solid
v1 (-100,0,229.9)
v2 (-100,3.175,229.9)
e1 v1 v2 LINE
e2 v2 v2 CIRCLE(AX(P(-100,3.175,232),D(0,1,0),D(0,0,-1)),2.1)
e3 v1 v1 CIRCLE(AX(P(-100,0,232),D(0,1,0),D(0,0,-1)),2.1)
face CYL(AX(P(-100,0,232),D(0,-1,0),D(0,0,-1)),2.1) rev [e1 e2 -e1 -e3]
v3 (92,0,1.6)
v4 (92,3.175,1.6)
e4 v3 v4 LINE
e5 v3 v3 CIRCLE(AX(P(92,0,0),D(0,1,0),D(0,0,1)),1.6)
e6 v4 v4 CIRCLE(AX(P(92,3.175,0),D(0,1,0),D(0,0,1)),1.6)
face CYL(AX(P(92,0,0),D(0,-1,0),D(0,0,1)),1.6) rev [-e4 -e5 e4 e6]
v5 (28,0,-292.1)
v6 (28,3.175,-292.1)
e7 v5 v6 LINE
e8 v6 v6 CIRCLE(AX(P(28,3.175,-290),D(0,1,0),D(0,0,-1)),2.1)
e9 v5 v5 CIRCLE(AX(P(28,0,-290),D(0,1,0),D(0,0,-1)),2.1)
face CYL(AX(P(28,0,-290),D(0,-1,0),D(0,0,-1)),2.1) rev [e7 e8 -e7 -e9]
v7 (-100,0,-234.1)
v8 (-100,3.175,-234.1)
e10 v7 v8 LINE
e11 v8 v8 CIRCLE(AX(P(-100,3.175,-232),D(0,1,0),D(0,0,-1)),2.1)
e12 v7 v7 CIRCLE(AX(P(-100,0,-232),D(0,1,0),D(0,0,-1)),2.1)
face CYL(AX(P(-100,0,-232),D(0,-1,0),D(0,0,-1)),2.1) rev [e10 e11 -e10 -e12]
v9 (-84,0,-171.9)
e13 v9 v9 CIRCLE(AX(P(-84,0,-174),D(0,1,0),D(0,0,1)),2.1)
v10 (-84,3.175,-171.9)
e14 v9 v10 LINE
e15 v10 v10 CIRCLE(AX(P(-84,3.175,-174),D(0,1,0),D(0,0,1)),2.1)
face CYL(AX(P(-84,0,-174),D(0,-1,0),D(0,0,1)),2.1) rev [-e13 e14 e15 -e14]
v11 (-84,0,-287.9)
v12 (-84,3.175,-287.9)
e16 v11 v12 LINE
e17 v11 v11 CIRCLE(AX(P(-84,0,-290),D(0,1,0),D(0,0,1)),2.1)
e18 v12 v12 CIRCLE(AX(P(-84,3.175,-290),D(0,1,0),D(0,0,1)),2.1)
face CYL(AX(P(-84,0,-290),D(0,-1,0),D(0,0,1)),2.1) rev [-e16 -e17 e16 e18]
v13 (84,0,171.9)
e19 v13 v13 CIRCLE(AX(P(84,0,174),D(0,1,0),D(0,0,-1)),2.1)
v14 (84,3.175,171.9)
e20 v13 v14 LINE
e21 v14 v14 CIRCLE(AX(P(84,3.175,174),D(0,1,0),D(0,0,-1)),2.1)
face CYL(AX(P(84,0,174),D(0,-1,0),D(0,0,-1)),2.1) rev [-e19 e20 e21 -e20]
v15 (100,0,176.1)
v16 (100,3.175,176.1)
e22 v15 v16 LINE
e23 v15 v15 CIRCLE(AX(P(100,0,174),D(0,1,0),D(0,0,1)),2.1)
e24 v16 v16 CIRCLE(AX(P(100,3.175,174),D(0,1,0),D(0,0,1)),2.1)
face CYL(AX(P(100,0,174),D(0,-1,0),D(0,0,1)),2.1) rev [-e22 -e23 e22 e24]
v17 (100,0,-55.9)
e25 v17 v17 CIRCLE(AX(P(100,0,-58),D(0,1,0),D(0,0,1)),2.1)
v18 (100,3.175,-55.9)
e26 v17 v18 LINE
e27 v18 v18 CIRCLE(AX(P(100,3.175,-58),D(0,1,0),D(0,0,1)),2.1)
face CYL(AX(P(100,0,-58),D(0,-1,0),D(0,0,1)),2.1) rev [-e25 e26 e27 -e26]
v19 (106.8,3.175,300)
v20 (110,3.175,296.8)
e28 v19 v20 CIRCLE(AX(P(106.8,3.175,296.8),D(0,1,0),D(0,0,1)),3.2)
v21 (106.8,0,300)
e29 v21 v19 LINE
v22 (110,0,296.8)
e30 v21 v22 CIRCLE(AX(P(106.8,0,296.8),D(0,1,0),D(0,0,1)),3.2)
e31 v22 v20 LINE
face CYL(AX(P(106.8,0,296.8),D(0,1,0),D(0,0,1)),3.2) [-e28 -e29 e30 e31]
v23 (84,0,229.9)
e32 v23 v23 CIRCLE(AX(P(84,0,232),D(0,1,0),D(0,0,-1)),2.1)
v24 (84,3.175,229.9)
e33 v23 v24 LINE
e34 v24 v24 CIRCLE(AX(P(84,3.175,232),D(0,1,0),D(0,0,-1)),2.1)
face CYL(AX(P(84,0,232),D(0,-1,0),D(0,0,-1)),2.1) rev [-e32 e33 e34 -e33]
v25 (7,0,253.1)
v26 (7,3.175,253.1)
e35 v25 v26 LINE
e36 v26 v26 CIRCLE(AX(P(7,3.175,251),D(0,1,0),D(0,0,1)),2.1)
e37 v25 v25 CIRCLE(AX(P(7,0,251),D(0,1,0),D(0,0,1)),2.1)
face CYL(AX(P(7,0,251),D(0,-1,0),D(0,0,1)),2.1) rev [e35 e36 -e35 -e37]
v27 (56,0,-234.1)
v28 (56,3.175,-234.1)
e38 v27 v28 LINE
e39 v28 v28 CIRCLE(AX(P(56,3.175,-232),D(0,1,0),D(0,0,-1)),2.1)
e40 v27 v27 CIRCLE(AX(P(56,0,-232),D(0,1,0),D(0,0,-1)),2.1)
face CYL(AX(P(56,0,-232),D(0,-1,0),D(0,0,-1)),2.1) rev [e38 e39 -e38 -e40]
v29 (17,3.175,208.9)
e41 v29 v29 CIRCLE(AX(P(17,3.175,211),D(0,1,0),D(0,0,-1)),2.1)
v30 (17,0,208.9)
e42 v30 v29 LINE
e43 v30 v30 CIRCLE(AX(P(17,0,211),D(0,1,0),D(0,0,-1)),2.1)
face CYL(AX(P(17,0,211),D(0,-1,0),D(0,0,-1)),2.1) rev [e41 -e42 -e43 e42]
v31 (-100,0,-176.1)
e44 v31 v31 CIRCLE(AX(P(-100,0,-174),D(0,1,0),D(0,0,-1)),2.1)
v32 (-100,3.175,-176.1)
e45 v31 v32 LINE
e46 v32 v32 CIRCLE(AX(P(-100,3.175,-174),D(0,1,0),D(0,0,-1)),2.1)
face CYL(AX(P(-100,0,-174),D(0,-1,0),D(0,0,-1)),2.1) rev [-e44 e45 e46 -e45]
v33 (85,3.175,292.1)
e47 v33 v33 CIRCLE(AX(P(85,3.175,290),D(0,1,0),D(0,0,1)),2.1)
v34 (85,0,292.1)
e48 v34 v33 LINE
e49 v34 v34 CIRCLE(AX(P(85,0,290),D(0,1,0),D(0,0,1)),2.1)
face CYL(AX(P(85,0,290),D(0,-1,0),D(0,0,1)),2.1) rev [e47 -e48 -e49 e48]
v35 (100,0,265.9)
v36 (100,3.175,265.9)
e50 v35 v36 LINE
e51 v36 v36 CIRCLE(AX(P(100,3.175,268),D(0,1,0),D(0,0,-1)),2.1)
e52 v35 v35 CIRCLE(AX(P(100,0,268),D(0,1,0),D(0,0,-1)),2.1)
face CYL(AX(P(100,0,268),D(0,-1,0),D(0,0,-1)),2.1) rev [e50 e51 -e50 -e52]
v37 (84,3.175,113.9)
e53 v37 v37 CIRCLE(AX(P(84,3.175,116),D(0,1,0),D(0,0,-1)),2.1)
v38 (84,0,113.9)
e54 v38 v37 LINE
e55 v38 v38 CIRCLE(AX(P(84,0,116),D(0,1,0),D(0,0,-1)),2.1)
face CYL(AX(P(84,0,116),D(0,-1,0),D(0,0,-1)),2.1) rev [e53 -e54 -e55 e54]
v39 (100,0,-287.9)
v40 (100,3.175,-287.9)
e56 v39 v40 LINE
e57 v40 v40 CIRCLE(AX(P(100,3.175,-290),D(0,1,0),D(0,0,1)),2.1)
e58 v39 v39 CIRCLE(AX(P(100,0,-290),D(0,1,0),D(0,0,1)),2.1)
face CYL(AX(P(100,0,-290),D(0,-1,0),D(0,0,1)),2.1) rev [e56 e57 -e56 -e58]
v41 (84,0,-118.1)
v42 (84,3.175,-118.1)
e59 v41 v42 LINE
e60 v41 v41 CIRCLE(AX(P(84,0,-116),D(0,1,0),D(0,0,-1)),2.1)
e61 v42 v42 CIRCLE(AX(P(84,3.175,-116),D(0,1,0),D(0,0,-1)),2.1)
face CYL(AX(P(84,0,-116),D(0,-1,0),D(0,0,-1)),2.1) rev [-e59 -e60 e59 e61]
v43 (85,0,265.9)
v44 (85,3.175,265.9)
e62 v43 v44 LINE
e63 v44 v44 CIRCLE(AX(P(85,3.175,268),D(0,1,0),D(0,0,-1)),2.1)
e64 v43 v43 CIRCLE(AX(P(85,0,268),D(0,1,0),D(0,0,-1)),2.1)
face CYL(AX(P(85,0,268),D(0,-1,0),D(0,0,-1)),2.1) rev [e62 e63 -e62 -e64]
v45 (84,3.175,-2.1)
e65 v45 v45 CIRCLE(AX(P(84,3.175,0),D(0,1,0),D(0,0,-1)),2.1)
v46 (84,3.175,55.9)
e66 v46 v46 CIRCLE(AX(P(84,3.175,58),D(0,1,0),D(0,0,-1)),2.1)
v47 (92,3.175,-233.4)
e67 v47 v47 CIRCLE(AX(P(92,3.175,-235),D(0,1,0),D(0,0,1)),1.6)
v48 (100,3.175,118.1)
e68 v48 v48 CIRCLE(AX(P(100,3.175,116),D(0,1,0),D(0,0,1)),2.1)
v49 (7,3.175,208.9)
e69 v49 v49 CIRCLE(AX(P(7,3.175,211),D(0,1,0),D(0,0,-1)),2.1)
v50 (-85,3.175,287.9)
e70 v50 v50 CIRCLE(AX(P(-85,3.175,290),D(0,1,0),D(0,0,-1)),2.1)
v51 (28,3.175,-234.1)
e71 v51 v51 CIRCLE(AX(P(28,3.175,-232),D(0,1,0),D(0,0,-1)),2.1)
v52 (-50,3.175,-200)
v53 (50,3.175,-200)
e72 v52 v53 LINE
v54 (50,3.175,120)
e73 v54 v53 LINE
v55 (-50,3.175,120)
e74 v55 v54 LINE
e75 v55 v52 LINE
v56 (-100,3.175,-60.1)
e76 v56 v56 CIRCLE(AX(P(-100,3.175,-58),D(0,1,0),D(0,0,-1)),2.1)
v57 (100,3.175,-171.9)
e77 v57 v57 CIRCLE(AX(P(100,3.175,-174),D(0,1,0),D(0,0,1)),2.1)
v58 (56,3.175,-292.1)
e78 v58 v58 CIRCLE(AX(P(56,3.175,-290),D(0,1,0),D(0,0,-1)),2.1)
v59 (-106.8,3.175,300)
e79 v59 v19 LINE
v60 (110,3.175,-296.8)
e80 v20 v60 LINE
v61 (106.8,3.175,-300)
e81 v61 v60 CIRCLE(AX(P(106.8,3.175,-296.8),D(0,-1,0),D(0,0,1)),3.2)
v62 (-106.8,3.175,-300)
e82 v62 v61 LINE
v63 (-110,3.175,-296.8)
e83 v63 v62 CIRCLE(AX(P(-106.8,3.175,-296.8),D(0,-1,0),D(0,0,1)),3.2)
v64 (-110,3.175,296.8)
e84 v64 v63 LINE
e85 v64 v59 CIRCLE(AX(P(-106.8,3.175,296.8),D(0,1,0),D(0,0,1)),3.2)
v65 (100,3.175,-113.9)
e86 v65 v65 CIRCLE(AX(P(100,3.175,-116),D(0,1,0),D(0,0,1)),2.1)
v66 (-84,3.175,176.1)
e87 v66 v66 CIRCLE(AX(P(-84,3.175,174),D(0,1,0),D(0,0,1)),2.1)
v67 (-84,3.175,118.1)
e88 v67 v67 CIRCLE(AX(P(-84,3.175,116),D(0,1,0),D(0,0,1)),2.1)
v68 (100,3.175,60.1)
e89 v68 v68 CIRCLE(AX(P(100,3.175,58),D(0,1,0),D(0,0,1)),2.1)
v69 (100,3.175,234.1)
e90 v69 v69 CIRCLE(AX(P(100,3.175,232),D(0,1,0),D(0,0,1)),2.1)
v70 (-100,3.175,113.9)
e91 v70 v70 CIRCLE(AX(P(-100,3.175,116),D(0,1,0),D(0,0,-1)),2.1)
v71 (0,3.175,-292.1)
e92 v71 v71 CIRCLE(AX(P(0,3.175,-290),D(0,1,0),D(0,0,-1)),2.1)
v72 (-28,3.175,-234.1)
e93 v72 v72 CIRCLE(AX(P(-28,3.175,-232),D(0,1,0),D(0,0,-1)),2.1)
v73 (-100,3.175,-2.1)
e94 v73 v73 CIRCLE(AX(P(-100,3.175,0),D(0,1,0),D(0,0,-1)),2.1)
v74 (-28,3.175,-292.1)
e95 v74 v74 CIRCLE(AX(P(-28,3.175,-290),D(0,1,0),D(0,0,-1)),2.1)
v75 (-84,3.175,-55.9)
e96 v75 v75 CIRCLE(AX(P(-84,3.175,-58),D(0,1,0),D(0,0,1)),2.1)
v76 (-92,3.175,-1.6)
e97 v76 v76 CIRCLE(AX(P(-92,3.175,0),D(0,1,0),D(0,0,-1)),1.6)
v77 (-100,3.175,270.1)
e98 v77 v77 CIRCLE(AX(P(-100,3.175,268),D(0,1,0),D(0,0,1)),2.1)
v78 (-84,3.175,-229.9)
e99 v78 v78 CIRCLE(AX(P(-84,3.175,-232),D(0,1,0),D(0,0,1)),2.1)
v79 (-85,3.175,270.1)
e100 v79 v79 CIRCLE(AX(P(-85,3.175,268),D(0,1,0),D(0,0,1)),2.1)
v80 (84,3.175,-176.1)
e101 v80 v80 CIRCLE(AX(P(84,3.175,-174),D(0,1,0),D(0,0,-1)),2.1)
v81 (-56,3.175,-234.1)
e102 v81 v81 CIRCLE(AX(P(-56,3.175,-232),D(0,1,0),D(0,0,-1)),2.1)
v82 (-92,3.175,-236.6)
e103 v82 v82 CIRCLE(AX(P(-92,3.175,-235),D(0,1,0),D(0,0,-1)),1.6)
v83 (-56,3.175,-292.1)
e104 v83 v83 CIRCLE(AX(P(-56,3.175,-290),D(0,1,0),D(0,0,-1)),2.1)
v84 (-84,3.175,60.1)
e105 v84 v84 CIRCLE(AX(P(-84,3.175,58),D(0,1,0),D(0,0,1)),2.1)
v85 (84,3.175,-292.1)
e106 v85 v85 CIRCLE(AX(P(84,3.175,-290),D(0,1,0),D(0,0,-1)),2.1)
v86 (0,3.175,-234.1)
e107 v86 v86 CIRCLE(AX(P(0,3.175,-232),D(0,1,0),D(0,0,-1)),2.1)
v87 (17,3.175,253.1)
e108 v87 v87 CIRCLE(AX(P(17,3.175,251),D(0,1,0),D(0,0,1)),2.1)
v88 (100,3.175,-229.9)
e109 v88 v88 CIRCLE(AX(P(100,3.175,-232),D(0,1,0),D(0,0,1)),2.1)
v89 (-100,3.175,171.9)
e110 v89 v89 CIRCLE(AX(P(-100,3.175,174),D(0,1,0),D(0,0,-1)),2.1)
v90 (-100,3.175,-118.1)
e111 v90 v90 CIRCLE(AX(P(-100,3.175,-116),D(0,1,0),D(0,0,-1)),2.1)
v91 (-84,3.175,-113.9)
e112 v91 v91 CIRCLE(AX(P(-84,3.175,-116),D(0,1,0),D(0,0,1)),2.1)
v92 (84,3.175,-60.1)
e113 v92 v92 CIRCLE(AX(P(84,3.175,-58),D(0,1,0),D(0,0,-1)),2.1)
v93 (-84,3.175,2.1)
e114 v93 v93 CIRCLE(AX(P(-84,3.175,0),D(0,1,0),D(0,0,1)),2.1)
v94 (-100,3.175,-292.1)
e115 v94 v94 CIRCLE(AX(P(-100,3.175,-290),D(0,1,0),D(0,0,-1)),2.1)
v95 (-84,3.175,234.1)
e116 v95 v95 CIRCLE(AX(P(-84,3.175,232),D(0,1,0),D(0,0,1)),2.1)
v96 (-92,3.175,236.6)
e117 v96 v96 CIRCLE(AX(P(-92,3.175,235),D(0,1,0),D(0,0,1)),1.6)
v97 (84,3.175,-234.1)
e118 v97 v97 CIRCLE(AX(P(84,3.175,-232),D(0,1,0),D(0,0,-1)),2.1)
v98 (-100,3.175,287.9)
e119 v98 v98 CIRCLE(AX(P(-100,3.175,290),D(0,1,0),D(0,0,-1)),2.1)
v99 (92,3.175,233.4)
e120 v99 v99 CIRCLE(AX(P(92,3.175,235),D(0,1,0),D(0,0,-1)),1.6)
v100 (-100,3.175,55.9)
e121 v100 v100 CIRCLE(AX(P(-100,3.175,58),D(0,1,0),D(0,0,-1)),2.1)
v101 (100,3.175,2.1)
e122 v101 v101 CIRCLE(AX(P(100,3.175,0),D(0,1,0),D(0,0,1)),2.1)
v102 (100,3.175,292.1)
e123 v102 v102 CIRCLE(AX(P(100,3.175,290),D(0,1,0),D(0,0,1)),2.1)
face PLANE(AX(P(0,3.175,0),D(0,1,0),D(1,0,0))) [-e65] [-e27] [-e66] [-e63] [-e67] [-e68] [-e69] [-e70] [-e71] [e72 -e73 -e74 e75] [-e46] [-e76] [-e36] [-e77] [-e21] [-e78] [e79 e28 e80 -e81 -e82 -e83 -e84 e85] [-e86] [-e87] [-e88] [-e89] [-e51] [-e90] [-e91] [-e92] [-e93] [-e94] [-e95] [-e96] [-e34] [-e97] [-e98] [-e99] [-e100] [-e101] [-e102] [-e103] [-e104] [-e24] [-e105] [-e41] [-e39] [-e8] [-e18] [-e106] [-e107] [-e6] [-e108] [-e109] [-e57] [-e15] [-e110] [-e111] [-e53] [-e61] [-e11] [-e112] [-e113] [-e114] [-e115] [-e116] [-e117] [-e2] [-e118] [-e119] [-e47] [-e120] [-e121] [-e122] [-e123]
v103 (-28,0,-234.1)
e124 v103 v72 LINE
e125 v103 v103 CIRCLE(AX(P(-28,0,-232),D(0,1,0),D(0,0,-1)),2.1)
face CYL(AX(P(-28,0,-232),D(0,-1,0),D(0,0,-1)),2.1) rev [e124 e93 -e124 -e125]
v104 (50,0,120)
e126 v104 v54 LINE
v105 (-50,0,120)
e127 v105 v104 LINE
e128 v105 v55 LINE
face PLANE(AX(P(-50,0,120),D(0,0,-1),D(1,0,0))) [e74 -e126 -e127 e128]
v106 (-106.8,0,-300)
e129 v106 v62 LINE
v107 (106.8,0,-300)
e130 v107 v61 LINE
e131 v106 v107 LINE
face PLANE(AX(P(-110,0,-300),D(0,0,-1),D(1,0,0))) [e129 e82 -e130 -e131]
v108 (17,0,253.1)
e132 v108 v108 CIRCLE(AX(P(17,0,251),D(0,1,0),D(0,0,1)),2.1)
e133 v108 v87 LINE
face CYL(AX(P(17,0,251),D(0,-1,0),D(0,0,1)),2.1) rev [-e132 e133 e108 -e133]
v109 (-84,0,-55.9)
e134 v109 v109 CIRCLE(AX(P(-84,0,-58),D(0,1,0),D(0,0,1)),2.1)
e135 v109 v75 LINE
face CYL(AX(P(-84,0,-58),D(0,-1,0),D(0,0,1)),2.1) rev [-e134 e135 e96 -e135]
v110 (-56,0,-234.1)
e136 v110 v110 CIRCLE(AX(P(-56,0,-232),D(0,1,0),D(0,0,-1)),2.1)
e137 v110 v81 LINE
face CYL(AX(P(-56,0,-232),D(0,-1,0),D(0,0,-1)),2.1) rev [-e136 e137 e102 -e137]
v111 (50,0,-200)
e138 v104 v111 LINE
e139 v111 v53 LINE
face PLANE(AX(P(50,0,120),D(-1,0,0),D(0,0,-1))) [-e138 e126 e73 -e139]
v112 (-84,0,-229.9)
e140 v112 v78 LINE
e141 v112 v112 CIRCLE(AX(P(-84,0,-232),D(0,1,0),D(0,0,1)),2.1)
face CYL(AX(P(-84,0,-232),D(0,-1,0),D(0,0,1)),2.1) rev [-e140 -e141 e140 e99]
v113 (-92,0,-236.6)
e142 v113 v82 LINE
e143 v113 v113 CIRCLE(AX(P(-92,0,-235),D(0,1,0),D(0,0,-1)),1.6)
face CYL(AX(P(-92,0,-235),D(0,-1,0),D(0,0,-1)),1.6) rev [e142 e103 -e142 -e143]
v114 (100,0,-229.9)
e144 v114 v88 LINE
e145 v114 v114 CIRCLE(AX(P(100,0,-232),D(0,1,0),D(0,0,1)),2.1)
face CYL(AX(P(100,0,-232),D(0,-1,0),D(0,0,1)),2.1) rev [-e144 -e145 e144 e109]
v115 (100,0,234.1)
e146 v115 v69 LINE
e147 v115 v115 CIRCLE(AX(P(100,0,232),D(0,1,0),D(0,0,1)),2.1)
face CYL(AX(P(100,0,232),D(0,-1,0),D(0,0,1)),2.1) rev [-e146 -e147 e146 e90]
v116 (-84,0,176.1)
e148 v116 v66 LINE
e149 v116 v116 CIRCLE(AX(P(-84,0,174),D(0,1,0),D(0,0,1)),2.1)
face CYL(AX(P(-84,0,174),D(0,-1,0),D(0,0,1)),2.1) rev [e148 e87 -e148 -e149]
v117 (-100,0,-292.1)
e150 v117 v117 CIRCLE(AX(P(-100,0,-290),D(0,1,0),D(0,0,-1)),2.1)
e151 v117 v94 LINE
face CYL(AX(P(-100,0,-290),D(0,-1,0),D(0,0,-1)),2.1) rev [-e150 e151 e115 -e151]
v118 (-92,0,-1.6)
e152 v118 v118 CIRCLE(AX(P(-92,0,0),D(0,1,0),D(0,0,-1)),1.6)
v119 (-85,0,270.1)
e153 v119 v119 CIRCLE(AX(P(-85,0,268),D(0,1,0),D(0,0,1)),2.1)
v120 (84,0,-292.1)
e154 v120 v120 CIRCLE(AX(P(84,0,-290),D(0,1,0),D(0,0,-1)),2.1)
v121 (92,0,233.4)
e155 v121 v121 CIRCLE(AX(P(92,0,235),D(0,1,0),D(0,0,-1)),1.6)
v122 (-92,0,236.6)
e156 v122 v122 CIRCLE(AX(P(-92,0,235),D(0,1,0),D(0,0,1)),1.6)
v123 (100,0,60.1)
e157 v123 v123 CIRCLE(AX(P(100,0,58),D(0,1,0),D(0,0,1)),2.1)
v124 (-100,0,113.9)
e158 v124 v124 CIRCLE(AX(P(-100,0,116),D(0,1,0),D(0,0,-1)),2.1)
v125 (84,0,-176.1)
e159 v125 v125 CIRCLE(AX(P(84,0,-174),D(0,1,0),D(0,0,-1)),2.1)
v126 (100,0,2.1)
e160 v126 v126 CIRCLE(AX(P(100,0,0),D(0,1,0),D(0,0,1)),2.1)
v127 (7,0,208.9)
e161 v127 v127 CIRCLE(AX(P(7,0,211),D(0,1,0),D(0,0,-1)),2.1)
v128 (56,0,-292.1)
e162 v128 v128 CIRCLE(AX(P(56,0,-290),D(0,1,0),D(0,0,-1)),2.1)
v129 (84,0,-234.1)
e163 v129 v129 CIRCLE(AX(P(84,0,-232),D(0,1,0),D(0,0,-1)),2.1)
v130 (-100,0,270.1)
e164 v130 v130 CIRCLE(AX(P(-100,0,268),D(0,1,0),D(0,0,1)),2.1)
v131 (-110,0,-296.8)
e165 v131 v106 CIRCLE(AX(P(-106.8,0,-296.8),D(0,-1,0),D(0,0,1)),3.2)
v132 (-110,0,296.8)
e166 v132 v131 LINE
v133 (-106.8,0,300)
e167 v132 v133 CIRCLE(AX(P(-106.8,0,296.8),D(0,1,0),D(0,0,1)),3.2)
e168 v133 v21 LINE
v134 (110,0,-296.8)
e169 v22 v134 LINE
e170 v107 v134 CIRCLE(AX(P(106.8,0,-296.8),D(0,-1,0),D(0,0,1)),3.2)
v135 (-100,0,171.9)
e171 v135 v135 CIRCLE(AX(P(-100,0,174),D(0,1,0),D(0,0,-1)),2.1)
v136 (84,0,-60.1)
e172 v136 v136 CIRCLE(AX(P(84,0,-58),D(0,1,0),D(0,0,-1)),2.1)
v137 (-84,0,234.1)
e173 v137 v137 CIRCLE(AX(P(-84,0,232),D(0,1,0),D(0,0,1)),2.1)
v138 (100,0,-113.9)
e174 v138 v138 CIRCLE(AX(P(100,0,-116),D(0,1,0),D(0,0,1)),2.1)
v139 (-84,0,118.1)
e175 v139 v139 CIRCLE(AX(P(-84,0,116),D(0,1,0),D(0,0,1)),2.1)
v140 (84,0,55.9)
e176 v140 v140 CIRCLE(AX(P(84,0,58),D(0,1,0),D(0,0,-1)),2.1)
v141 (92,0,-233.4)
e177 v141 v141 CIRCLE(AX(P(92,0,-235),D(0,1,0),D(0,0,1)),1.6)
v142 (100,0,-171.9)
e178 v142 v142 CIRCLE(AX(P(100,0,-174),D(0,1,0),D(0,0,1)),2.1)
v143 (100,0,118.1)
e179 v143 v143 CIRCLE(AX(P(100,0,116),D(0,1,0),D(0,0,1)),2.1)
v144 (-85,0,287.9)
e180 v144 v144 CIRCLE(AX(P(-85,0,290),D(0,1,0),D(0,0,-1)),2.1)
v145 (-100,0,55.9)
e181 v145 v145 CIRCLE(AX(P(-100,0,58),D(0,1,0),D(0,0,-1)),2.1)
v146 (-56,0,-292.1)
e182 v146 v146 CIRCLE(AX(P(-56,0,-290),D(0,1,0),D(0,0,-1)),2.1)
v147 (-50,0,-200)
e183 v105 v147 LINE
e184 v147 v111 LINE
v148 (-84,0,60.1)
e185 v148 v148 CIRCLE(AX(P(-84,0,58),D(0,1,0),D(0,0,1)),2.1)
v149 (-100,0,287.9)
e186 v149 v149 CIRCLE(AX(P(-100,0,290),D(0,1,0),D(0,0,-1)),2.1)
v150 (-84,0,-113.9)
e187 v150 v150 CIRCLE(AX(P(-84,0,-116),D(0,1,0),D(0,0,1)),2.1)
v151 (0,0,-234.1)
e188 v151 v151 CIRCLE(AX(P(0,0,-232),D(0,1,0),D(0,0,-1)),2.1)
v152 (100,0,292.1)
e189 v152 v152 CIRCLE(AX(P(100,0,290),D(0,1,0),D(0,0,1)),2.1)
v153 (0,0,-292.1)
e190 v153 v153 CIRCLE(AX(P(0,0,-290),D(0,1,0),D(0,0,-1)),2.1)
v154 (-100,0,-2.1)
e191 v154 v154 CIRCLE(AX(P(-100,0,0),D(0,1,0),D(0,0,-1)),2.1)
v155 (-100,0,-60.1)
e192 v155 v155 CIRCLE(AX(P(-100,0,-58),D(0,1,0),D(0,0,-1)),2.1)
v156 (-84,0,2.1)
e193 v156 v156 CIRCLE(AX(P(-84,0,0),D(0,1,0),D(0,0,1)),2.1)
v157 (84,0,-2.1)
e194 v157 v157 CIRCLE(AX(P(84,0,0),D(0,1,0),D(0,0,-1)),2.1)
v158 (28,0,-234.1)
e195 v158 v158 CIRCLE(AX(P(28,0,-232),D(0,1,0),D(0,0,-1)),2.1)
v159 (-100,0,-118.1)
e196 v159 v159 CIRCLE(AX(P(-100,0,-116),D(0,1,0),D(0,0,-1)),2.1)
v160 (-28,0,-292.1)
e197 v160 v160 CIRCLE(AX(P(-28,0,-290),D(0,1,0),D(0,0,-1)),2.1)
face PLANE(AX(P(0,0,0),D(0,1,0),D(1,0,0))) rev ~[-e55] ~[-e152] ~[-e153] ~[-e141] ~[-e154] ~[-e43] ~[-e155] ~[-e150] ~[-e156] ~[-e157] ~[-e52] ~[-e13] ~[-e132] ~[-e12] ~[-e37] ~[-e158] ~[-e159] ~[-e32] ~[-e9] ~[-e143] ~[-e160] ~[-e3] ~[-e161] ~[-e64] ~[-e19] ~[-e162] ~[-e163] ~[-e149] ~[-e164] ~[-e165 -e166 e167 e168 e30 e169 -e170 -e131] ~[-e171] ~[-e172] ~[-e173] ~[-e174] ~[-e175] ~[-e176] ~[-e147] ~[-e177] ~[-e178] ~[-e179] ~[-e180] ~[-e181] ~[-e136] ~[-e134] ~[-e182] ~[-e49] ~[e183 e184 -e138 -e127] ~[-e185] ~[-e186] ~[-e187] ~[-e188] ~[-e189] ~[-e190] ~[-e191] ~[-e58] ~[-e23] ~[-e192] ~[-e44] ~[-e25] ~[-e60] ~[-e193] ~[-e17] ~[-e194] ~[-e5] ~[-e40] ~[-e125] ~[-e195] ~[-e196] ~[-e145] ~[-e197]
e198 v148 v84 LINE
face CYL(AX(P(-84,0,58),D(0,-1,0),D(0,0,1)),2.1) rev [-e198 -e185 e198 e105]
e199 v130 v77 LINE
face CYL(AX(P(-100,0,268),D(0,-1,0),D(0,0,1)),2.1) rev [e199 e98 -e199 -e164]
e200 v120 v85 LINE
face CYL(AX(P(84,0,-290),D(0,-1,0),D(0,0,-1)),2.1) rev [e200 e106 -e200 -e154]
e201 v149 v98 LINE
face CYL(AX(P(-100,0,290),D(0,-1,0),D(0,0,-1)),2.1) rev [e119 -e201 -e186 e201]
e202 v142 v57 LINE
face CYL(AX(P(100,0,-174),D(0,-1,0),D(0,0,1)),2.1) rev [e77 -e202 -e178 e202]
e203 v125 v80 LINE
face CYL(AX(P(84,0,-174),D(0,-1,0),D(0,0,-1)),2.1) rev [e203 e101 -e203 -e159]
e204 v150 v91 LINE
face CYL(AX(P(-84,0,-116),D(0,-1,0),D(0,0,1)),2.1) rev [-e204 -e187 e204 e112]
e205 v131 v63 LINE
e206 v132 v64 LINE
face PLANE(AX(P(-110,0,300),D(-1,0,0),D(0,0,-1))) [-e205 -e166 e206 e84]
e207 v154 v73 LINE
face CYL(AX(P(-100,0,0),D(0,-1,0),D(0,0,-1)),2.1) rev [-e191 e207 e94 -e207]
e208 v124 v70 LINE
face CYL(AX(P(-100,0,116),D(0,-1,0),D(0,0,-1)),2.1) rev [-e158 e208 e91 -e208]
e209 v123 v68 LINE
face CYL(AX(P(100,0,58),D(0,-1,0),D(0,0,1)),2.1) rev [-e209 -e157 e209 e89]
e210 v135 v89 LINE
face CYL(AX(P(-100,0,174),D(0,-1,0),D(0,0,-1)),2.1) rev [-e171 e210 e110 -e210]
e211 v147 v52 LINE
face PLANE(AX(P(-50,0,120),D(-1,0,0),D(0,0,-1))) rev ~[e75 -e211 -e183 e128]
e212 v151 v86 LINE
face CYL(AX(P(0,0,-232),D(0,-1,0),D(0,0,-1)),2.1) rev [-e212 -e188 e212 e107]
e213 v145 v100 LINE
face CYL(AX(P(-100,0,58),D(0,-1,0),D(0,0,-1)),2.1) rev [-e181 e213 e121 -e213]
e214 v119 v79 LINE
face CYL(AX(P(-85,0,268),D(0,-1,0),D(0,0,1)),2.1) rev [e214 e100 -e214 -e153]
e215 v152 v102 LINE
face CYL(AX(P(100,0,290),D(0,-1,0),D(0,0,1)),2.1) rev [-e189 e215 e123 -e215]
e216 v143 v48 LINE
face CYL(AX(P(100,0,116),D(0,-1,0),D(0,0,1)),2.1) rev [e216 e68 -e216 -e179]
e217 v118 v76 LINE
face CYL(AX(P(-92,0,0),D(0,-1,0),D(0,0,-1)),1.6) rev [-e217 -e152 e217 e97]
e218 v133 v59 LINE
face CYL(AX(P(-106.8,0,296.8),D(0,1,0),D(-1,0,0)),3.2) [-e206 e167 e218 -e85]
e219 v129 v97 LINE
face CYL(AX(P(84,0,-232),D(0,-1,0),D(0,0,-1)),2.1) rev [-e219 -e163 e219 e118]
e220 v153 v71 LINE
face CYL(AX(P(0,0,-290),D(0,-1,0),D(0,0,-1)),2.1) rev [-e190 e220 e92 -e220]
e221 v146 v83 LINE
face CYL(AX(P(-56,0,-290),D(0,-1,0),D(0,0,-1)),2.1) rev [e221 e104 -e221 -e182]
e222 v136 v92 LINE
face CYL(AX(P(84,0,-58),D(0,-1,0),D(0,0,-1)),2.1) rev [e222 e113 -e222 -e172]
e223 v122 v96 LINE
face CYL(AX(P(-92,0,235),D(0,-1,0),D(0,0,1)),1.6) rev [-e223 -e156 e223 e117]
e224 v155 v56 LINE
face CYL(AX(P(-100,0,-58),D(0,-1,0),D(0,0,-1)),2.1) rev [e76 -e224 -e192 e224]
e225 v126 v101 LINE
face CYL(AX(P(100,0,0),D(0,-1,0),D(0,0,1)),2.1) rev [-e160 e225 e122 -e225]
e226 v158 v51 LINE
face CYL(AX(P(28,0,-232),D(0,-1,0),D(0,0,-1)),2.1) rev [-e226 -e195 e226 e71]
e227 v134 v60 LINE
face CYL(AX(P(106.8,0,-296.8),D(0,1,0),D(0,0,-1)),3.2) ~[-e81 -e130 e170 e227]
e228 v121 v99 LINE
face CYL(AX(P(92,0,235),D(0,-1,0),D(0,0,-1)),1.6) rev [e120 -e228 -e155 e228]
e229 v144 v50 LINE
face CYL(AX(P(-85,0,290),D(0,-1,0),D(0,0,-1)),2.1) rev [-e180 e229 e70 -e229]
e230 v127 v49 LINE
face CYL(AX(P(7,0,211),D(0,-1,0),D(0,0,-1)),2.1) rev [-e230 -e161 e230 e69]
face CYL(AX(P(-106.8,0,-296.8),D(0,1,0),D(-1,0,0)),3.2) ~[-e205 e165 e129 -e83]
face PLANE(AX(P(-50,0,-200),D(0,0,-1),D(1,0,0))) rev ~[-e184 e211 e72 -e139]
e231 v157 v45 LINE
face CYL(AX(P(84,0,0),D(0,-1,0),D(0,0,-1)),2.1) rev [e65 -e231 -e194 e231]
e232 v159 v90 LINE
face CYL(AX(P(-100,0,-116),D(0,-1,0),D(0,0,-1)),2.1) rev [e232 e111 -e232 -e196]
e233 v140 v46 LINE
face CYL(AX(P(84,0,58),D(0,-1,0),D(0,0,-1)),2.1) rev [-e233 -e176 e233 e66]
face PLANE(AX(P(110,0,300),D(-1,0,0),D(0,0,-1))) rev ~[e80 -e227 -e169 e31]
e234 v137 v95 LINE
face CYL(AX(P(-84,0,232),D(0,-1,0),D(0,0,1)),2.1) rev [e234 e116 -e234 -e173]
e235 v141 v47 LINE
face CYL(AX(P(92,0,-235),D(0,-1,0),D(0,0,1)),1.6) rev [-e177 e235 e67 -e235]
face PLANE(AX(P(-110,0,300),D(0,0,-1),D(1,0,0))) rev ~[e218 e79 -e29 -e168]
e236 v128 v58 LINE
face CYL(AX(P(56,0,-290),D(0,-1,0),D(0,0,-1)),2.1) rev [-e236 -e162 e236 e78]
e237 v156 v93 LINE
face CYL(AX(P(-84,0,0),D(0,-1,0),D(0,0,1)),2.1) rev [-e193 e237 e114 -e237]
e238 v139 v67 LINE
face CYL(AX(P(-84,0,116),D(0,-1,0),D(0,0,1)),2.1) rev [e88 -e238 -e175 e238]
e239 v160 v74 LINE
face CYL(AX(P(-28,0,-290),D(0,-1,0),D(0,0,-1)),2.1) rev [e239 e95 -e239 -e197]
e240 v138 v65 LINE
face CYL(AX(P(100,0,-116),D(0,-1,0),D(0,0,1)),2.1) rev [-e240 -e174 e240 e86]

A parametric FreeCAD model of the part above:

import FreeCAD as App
import Part
import Sketcher

V = App.Vector


def edges_at(feature, points):
    """Names of the edges that pass closest to the given points."""
    edges = feature.Shape.Edges
    near = lambda p: min(range(len(edges)), key=lambda i: edges[i].distToShape(Part.Vertex(*p))[0])
    return sorted({f"Edge{near(p) + 1}" for p in points})

doc = App.newDocument("Part")
body = doc.addObject("PartDesign::Body", "Body")

# Sketch on XZ plane
sketch1 = body.newObject("Sketcher::SketchObject", "Sketch")
sketch1.AttachmentSupport = (doc.getObject("XZ_Plane"), [""])
sketch1.MapMode = "FlatFace"
sketch1.addGeometry(Part.LineSegment(V(-110, -300, 0), V(-110, 300, 0)), False)
sketch1.addGeometry(Part.LineSegment(V(-110, 300, 0), V(110, 300, 0)), False)
sketch1.addGeometry(Part.LineSegment(V(110, 300, 0), V(110, -300, 0)), False)
sketch1.addGeometry(Part.LineSegment(V(110, -300, 0), V(-110, -300, 0)), False)
sketch1.addGeometry(Part.Circle(V(-100, 290, 0), V(0, 0, 1), 2.1), False)
sketch1.addGeometry(Part.Circle(V(-100, 268, 0), V(0, 0, 1), 2.1), False)
sketch1.addGeometry(Part.Circle(V(-85, 290, 0), V(0, 0, 1), 2.1), False)
sketch1.addGeometry(Part.Circle(V(-85, 268, 0), V(0, 0, 1), 2.1), False)
sketch1.addGeometry(Part.Circle(V(-100, 232, 0), V(0, 0, 1), 2.1), False)
sketch1.addGeometry(Part.Circle(V(-92, 235, 0), V(0, 0, 1), 1.6), False)
sketch1.addGeometry(Part.Circle(V(-84, 232, 0), V(0, 0, 1), 2.1), False)
sketch1.addGeometry(Part.Circle(V(-100, 174, 0), V(0, 0, 1), 2.1), False)
sketch1.addGeometry(Part.Circle(V(-84, 174, 0), V(0, 0, 1), 2.1), False)
sketch1.addGeometry(Part.Circle(V(-100, 116, 0), V(0, 0, 1), 2.1), False)
sketch1.addGeometry(Part.Circle(V(-84, 116, 0), V(0, 0, 1), 2.1), False)
sketch1.addGeometry(Part.Circle(V(-100, 58, 0), V(0, 0, 1), 2.1), False)
sketch1.addGeometry(Part.Circle(V(-84, 58, 0), V(0, 0, 1), 2.1), False)
sketch1.addGeometry(Part.Circle(V(7, 251, 0), V(0, 0, 1), 2.1), False)
sketch1.addGeometry(Part.Circle(V(17, 251, 0), V(0, 0, 1), 2.1), False)
sketch1.addGeometry(Part.Circle(V(7, 211, 0), V(0, 0, 1), 2.1), False)
sketch1.addGeometry(Part.Circle(V(17, 211, 0), V(0, 0, 1), 2.1), False)
sketch1.addGeometry(Part.Circle(V(85, 290, 0), V(0, 0, 1), 2.1), False)
sketch1.addGeometry(Part.Circle(V(85, 268, 0), V(0, 0, 1), 2.1), False)
sketch1.addGeometry(Part.Circle(V(100, 290, 0), V(0, 0, 1), 2.1), False)
sketch1.addGeometry(Part.Circle(V(100, 268, 0), V(0, 0, 1), 2.1), False)
sketch1.addGeometry(Part.Circle(V(84, 232, 0), V(0, 0, 1), 2.1), False)
sketch1.addGeometry(Part.Circle(V(92, 235, 0), V(0, 0, 1), 1.6), False)
sketch1.addGeometry(Part.Circle(V(100, 232, 0), V(0, 0, 1), 2.1), False)
sketch1.addGeometry(Part.Circle(V(84, 174, 0), V(0, 0, 1), 2.1), False)
sketch1.addGeometry(Part.Circle(V(100, 174, 0), V(0, 0, 1), 2.1), False)
sketch1.addGeometry(Part.Circle(V(84, 116, 0), V(0, 0, 1), 2.1), False)
sketch1.addGeometry(Part.Circle(V(100, 116, 0), V(0, 0, 1), 2.1), False)
sketch1.addGeometry(Part.Circle(V(84, 58, 0), V(0, 0, 1), 2.1), False)
sketch1.addGeometry(Part.Circle(V(100, 58, 0), V(0, 0, 1), 2.1), False)
sketch1.addGeometry(Part.Circle(V(-100, 0, 0), V(0, 0, 1), 2.1), False)
sketch1.addGeometry(Part.Circle(V(-92, 0, 0), V(0, 0, 1), 1.6), False)
sketch1.addGeometry(Part.Circle(V(-84, 0, 0), V(0, 0, 1), 2.1), False)
sketch1.addGeometry(Part.Circle(V(-100, -58, 0), V(0, 0, 1), 2.1), False)
sketch1.addGeometry(Part.Circle(V(-84, -58, 0), V(0, 0, 1), 2.1), False)
sketch1.addGeometry(Part.Circle(V(-100, -116, 0), V(0, 0, 1), 2.1), False)
sketch1.addGeometry(Part.Circle(V(-84, -116, 0), V(0, 0, 1), 2.1), False)
sketch1.addGeometry(Part.Circle(V(-100, -174, 0), V(0, 0, 1), 2.1), False)
sketch1.addGeometry(Part.Circle(V(-84, -174, 0), V(0, 0, 1), 2.1), False)
sketch1.addGeometry(Part.Circle(V(-100, -232, 0), V(0, 0, 1), 2.1), False)
sketch1.addGeometry(Part.Circle(V(-92, -235, 0), V(0, 0, 1), 1.6), False)
sketch1.addGeometry(Part.Circle(V(-84, -232, 0), V(0, 0, 1), 2.1), False)
sketch1.addGeometry(Part.Circle(V(-100, -290, 0), V(0, 0, 1), 2.1), False)
sketch1.addGeometry(Part.Circle(V(-84, -290, 0), V(0, 0, 1), 2.1), False)
sketch1.addGeometry(Part.Circle(V(-56, -232, 0), V(0, 0, 1), 2.1), False)
sketch1.addGeometry(Part.Circle(V(-56, -290, 0), V(0, 0, 1), 2.1), False)
sketch1.addGeometry(Part.Circle(V(-28, -232, 0), V(0, 0, 1), 2.1), False)
sketch1.addGeometry(Part.Circle(V(-28, -290, 0), V(0, 0, 1), 2.1), False)
sketch1.addGeometry(Part.LineSegment(V(50, 120, 0), V(-50, 120, 0)), False)
sketch1.addGeometry(Part.LineSegment(V(-50, 120, 0), V(-50, -200, 0)), False)
sketch1.addGeometry(Part.LineSegment(V(-50, -200, 0), V(50, -200, 0)), False)
sketch1.addGeometry(Part.LineSegment(V(50, -200, 0), V(50, 120, 0)), False)
sketch1.addGeometry(Part.Circle(V(84, 0, 0), V(0, 0, 1), 2.1), False)
sketch1.addGeometry(Part.Circle(V(92, 0, 0), V(0, 0, 1), 1.6), False)
sketch1.addGeometry(Part.Circle(V(100, 0, 0), V(0, 0, 1), 2.1), False)
sketch1.addGeometry(Part.Circle(V(84, -58, 0), V(0, 0, 1), 2.1), False)
sketch1.addGeometry(Part.Circle(V(100, -58, 0), V(0, 0, 1), 2.1), False)
sketch1.addGeometry(Part.Circle(V(84, -116, 0), V(0, 0, 1), 2.1), False)
sketch1.addGeometry(Part.Circle(V(100, -116, 0), V(0, 0, 1), 2.1), False)
sketch1.addGeometry(Part.Circle(V(0, -232, 0), V(0, 0, 1), 2.1), False)
sketch1.addGeometry(Part.Circle(V(0, -290, 0), V(0, 0, 1), 2.1), False)
sketch1.addGeometry(Part.Circle(V(28, -232, 0), V(0, 0, 1), 2.1), False)
sketch1.addGeometry(Part.Circle(V(28, -290, 0), V(0, 0, 1), 2.1), False)
sketch1.addGeometry(Part.Circle(V(84, -174, 0), V(0, 0, 1), 2.1), False)
sketch1.addGeometry(Part.Circle(V(100, -174, 0), V(0, 0, 1), 2.1), False)
sketch1.addGeometry(Part.Circle(V(56, -232, 0), V(0, 0, 1), 2.1), False)
sketch1.addGeometry(Part.Circle(V(56, -290, 0), V(0, 0, 1), 2.1), False)
sketch1.addGeometry(Part.Circle(V(84, -232, 0), V(0, 0, 1), 2.1), False)
sketch1.addGeometry(Part.Circle(V(92, -235, 0), V(0, 0, 1), 1.6), False)
sketch1.addGeometry(Part.Circle(V(100, -232, 0), V(0, 0, 1), 2.1), False)
sketch1.addGeometry(Part.Circle(V(84, -290, 0), V(0, 0, 1), 2.1), False)
sketch1.addGeometry(Part.Circle(V(100, -290, 0), V(0, 0, 1), 2.1), False)
sketch1.addConstraint(Sketcher.Constraint("Coincident", 0, 2, 1, 1))
sketch1.addConstraint(Sketcher.Constraint("Coincident", 1, 2, 2, 1))
sketch1.addConstraint(Sketcher.Constraint("Coincident", 2, 2, 3, 1))
sketch1.addConstraint(Sketcher.Constraint("Coincident", 3, 2, 0, 1))
sketch1.addConstraint(Sketcher.Constraint("Coincident", 52, 2, 53, 1))
sketch1.addConstraint(Sketcher.Constraint("Coincident", 53, 2, 54, 1))
sketch1.addConstraint(Sketcher.Constraint("Coincident", 54, 2, 55, 1))
sketch1.addConstraint(Sketcher.Constraint("Coincident", 55, 2, 52, 1))
sketch1.addConstraint(Sketcher.Constraint("Vertical", 0))
sketch1.addConstraint(Sketcher.Constraint("Horizontal", 1))
sketch1.addConstraint(Sketcher.Constraint("Vertical", 2))
sketch1.addConstraint(Sketcher.Constraint("Horizontal", 3))
sketch1.addConstraint(Sketcher.Constraint("Horizontal", 52))
sketch1.addConstraint(Sketcher.Constraint("Vertical", 53))
sketch1.addConstraint(Sketcher.Constraint("Horizontal", 54))
sketch1.addConstraint(Sketcher.Constraint("Vertical", 55))
sketch1.addConstraint(Sketcher.Constraint("Equal", 4, 5))
sketch1.addConstraint(Sketcher.Constraint("Equal", 5, 6))
sketch1.addConstraint(Sketcher.Constraint("Equal", 6, 7))
sketch1.addConstraint(Sketcher.Constraint("Equal", 7, 8))
sketch1.addConstraint(Sketcher.Constraint("Equal", 8, 10))
sketch1.addConstraint(Sketcher.Constraint("Equal", 10, 11))
sketch1.addConstraint(Sketcher.Constraint("Equal", 11, 12))
sketch1.addConstraint(Sketcher.Constraint("Equal", 12, 13))
sketch1.addConstraint(Sketcher.Constraint("Equal", 13, 14))
sketch1.addConstraint(Sketcher.Constraint("Equal", 14, 15))
sketch1.addConstraint(Sketcher.Constraint("Equal", 15, 16))
sketch1.addConstraint(Sketcher.Constraint("Equal", 16, 17))
sketch1.addConstraint(Sketcher.Constraint("Equal", 17, 18))
sketch1.addConstraint(Sketcher.Constraint("Equal", 18, 19))
sketch1.addConstraint(Sketcher.Constraint("Equal", 19, 20))
sketch1.addConstraint(Sketcher.Constraint("Equal", 20, 21))
sketch1.addConstraint(Sketcher.Constraint("Equal", 21, 22))
sketch1.addConstraint(Sketcher.Constraint("Equal", 22, 23))
sketch1.addConstraint(Sketcher.Constraint("Equal", 23, 24))
sketch1.addConstraint(Sketcher.Constraint("Equal", 24, 25))
sketch1.addConstraint(Sketcher.Constraint("Equal", 9, 26))
sketch1.addConstraint(Sketcher.Constraint("Equal", 25, 27))
sketch1.addConstraint(Sketcher.Constraint("Equal", 27, 28))
sketch1.addConstraint(Sketcher.Constraint("Equal", 28, 29))
sketch1.addConstraint(Sketcher.Constraint("Equal", 29, 30))
sketch1.addConstraint(Sketcher.Constraint("Equal", 30, 31))
sketch1.addConstraint(Sketcher.Constraint("Equal", 31, 32))
sketch1.addConstraint(Sketcher.Constraint("Equal", 32, 33))
sketch1.addConstraint(Sketcher.Constraint("Equal", 33, 34))
sketch1.addConstraint(Sketcher.Constraint("Equal", 26, 35))
sketch1.addConstraint(Sketcher.Constraint("Equal", 34, 36))
sketch1.addConstraint(Sketcher.Constraint("Equal", 36, 37))
sketch1.addConstraint(Sketcher.Constraint("Equal", 37, 38))
sketch1.addConstraint(Sketcher.Constraint("Equal", 38, 39))
sketch1.addConstraint(Sketcher.Constraint("Equal", 39, 40))
sketch1.addConstraint(Sketcher.Constraint("Equal", 40, 41))
sketch1.addConstraint(Sketcher.Constraint("Equal", 41, 42))
sketch1.addConstraint(Sketcher.Constraint("Equal", 42, 43))
sketch1.addConstraint(Sketcher.Constraint("Equal", 35, 44))
sketch1.addConstraint(Sketcher.Constraint("Equal", 43, 45))
sketch1.addConstraint(Sketcher.Constraint("Equal", 45, 46))
sketch1.addConstraint(Sketcher.Constraint("Equal", 46, 47))
sketch1.addConstraint(Sketcher.Constraint("Equal", 47, 48))
sketch1.addConstraint(Sketcher.Constraint("Equal", 48, 49))
sketch1.addConstraint(Sketcher.Constraint("Equal", 49, 50))
sketch1.addConstraint(Sketcher.Constraint("Equal", 50, 51))
sketch1.addConstraint(Sketcher.Constraint("Equal", 51, 56))
sketch1.addConstraint(Sketcher.Constraint("Equal", 44, 57))
sketch1.addConstraint(Sketcher.Constraint("Equal", 56, 58))
sketch1.addConstraint(Sketcher.Constraint("Equal", 58, 59))
sketch1.addConstraint(Sketcher.Constraint("Equal", 59, 60))
sketch1.addConstraint(Sketcher.Constraint("Equal", 60, 61))
sketch1.addConstraint(Sketcher.Constraint("Equal", 61, 62))
sketch1.addConstraint(Sketcher.Constraint("Equal", 62, 63))
sketch1.addConstraint(Sketcher.Constraint("Equal", 63, 64))
sketch1.addConstraint(Sketcher.Constraint("Equal", 64, 65))
sketch1.addConstraint(Sketcher.Constraint("Equal", 65, 66))
sketch1.addConstraint(Sketcher.Constraint("Equal", 66, 67))
sketch1.addConstraint(Sketcher.Constraint("Equal", 67, 68))
sketch1.addConstraint(Sketcher.Constraint("Equal", 68, 69))
sketch1.addConstraint(Sketcher.Constraint("Equal", 69, 70))
sketch1.addConstraint(Sketcher.Constraint("Equal", 70, 71))
sketch1.addConstraint(Sketcher.Constraint("Equal", 57, 72))
sketch1.addConstraint(Sketcher.Constraint("Equal", 71, 73))
sketch1.addConstraint(Sketcher.Constraint("Equal", 73, 74))
sketch1.addConstraint(Sketcher.Constraint("Equal", 74, 75))
sketch1.addConstraint(Sketcher.Constraint("Symmetric", 33, 3, 37, 3, -1, 1))
sketch1.addConstraint(Sketcher.Constraint("Symmetric", 32, 3, 38, 3, -1, 1))
sketch1.addConstraint(Sketcher.Constraint("Symmetric", 31, 3, 39, 3, -1, 1))
sketch1.addConstraint(Sketcher.Constraint("Symmetric", 30, 3, 40, 3, -1, 1))
sketch1.addConstraint(Sketcher.Constraint("Symmetric", 29, 3, 41, 3, -1, 1))
sketch1.addConstraint(Sketcher.Constraint("Symmetric", 28, 3, 42, 3, -1, 1))
sketch1.addConstraint(Sketcher.Constraint("Symmetric", 27, 3, 43, 3, -1, 1))
sketch1.addConstraint(Sketcher.Constraint("Symmetric", 26, 3, 44, 3, -1, 1))
sketch1.addConstraint(Sketcher.Constraint("Symmetric", 25, 3, 45, 3, -1, 1))
sketch1.addConstraint(Sketcher.Constraint("Symmetric", 23, 3, 46, 3, -1, 1))
sketch1.addConstraint(Sketcher.Constraint("Symmetric", 36, 3, 56, 3, -1, 1))
sketch1.addConstraint(Sketcher.Constraint("Symmetric", 35, 3, 57, 3, -1, 1))
sketch1.addConstraint(Sketcher.Constraint("Symmetric", 34, 3, 58, 3, -1, 1))
sketch1.addConstraint(Sketcher.Constraint("Symmetric", 16, 3, 59, 3, -1, 1))
sketch1.addConstraint(Sketcher.Constraint("Symmetric", 15, 3, 60, 3, -1, 1))
sketch1.addConstraint(Sketcher.Constraint("Symmetric", 14, 3, 61, 3, -1, 1))
sketch1.addConstraint(Sketcher.Constraint("Symmetric", 13, 3, 62, 3, -1, 1))
sketch1.addConstraint(Sketcher.Constraint("Symmetric", 12, 3, 67, 3, -1, 1))
sketch1.addConstraint(Sketcher.Constraint("Symmetric", 11, 3, 68, 3, -1, 1))
sketch1.addConstraint(Sketcher.Constraint("Symmetric", 10, 3, 71, 3, -1, 1))
sketch1.addConstraint(Sketcher.Constraint("Symmetric", 9, 3, 72, 3, -1, 1))
sketch1.addConstraint(Sketcher.Constraint("Symmetric", 8, 3, 73, 3, -1, 1))
sketch1.addConstraint(Sketcher.Constraint("Symmetric", 4, 3, 75, 3, -1, 1))
sketch1.addConstraint(Sketcher.Constraint("Symmetric", 0, 2, 2, 2, -1, 1))
sketch1.addConstraint(Sketcher.Constraint("Symmetric", 6, 3, 21, 3, -2))
sketch1.addConstraint(Sketcher.Constraint("Symmetric", 7, 3, 22, 3, -2))
sketch1.addConstraint(Sketcher.Constraint("Symmetric", 4, 3, 23, 3, -2))
sketch1.addConstraint(Sketcher.Constraint("Symmetric", 5, 3, 24, 3, -2))
sketch1.addConstraint(Sketcher.Constraint("Symmetric", 10, 3, 25, 3, -2))
sketch1.addConstraint(Sketcher.Constraint("Symmetric", 9, 3, 26, 3, -2))
sketch1.addConstraint(Sketcher.Constraint("Symmetric", 8, 3, 27, 3, -2))
sketch1.addConstraint(Sketcher.Constraint("Symmetric", 12, 3, 28, 3, -2))
sketch1.addConstraint(Sketcher.Constraint("Symmetric", 11, 3, 29, 3, -2))
sketch1.addConstraint(Sketcher.Constraint("Symmetric", 14, 3, 30, 3, -2))
sketch1.addConstraint(Sketcher.Constraint("Symmetric", 13, 3, 31, 3, -2))
sketch1.addConstraint(Sketcher.Constraint("Symmetric", 16, 3, 32, 3, -2))
sketch1.addConstraint(Sketcher.Constraint("Symmetric", 15, 3, 33, 3, -2))
sketch1.addConstraint(Sketcher.Constraint("Symmetric", 50, 3, 65, 3, -2))
sketch1.addConstraint(Sketcher.Constraint("Symmetric", 51, 3, 66, 3, -2))
sketch1.addConstraint(Sketcher.Constraint("Symmetric", 48, 3, 69, 3, -2))
sketch1.addConstraint(Sketcher.Constraint("Symmetric", 49, 3, 70, 3, -2))
sketch1.addConstraint(Sketcher.Constraint("Symmetric", 47, 3, 74, 3, -2))
sketch1.addConstraint(Sketcher.Constraint("PointOnObject", 34, 3, -1))
sketch1.addConstraint(Sketcher.Constraint("PointOnObject", 35, 3, -1))
sketch1.addConstraint(Sketcher.Constraint("PointOnObject", 36, 3, -1))
sketch1.addConstraint(Sketcher.Constraint("PointOnObject", 63, 3, -2))
sketch1.addConstraint(Sketcher.Constraint("PointOnObject", 64, 3, -2))
sketch1.addConstraint(Sketcher.Constraint("Horizontal", 4, 3, 6, 3))
sketch1.addConstraint(Sketcher.Constraint("Horizontal", 5, 3, 7, 3))
sketch1.addConstraint(Sketcher.Constraint("Horizontal", 8, 3, 10, 3))
sketch1.addConstraint(Sketcher.Constraint("Horizontal", 11, 3, 12, 3))
sketch1.addConstraint(Sketcher.Constraint("Horizontal", 13, 3, 14, 3))
sketch1.addConstraint(Sketcher.Constraint("Horizontal", 15, 3, 16, 3))
sketch1.addConstraint(Sketcher.Constraint("Horizontal", 17, 3, 18, 3))
sketch1.addConstraint(Sketcher.Constraint("Horizontal", 19, 3, 20, 3))
sketch1.addConstraint(Sketcher.Constraint("Horizontal", 46, 3, 47, 3))
sketch1.addConstraint(Sketcher.Constraint("Horizontal", 45, 3, 48, 3))
sketch1.addConstraint(Sketcher.Constraint("Horizontal", 47, 3, 49, 3))
sketch1.addConstraint(Sketcher.Constraint("Horizontal", 48, 3, 50, 3))
sketch1.addConstraint(Sketcher.Constraint("Horizontal", 49, 3, 51, 3))
sketch1.addConstraint(Sketcher.Constraint("Horizontal", 50, 3, 63, 3))
sketch1.addConstraint(Sketcher.Constraint("Horizontal", 51, 3, 64, 3))
sketch1.addConstraint(Sketcher.Constraint("Vertical", 4, 3, 5, 3))
sketch1.addConstraint(Sketcher.Constraint("Vertical", 6, 3, 7, 3))
sketch1.addConstraint(Sketcher.Constraint("Vertical", 5, 3, 8, 3))
sketch1.addConstraint(Sketcher.Constraint("Vertical", 8, 3, 11, 3))
sketch1.addConstraint(Sketcher.Constraint("Vertical", 10, 3, 12, 3))
sketch1.addConstraint(Sketcher.Constraint("Vertical", 11, 3, 13, 3))
sketch1.addConstraint(Sketcher.Constraint("Vertical", 12, 3, 14, 3))
sketch1.addConstraint(Sketcher.Constraint("Vertical", 13, 3, 15, 3))
sketch1.addConstraint(Sketcher.Constraint("Vertical", 14, 3, 16, 3))
sketch1.addConstraint(Sketcher.Constraint("Vertical", 17, 3, 19, 3))
sketch1.addConstraint(Sketcher.Constraint("Vertical", 18, 3, 20, 3))
sketch1.addConstraint(Sketcher.Constraint("Vertical", 15, 3, 34, 3))
sketch1.addConstraint(Sketcher.Constraint("Vertical", 9, 3, 35, 3))
sketch1.addConstraint(Sketcher.Constraint("Vertical", 16, 3, 36, 3))
sketch1.addConstraint(Sketcher.Constraint("Vertical", 45, 3, 47, 3))
sketch1.addConstraint(Sketcher.Constraint("Vertical", 48, 3, 49, 3))
sketch1.addConstraint(Sketcher.Constraint("Vertical", 50, 3, 51, 3))
sketch1.addConstraint(Sketcher.Constraint("Diameter", 4, 4.2))
sketch1.addConstraint(Sketcher.Constraint("Diameter", 9, 3.2))
sketch1.addConstraint(Sketcher.Constraint("DistanceX", 1, 1, 1, 2, 220.0))
sketch1.addConstraint(Sketcher.Constraint("DistanceX", 52, 2, 52, 1, 100.0))
sketch1.addConstraint(Sketcher.Constraint("DistanceY", 0, 1, 0, 2, 600.0))
sketch1.addConstraint(Sketcher.Constraint("DistanceY", 53, 2, 53, 1, 320.0))
sketch1.addConstraint(Sketcher.Constraint("DistanceX", 4, 3, -1, 1, 100.0))
sketch1.addConstraint(Sketcher.Constraint("DistanceY", -1, 1, 4, 3, 290.0))
sketch1.addConstraint(Sketcher.Constraint("DistanceY", -1, 1, 5, 3, 268.0))
sketch1.addConstraint(Sketcher.Constraint("DistanceX", 6, 3, -1, 1, 85.0))
sketch1.addConstraint(Sketcher.Constraint("DistanceY", -1, 1, 8, 3, 232.0))
sketch1.addConstraint(Sketcher.Constraint("DistanceX", 9, 3, -1, 1, 92.0))
sketch1.addConstraint(Sketcher.Constraint("DistanceY", -1, 1, 9, 3, 235.0))
sketch1.addConstraint(Sketcher.Constraint("DistanceX", 10, 3, -1, 1, 84.0))
sketch1.addConstraint(Sketcher.Constraint("DistanceY", -1, 1, 11, 3, 174.0))
sketch1.addConstraint(Sketcher.Constraint("DistanceY", -1, 1, 13, 3, 116.0))
sketch1.addConstraint(Sketcher.Constraint("DistanceY", -1, 1, 15, 3, 58.0))
sketch1.addConstraint(Sketcher.Constraint("DistanceX", -1, 1, 17, 3, 7.0))
sketch1.addConstraint(Sketcher.Constraint("DistanceY", -1, 1, 17, 3, 251.0))
sketch1.addConstraint(Sketcher.Constraint("DistanceX", -1, 1, 18, 3, 17.0))
sketch1.addConstraint(Sketcher.Constraint("DistanceY", -1, 1, 19, 3, 211.0))
sketch1.addConstraint(Sketcher.Constraint("DistanceX", 48, 3, -1, 1, 56.0))
sketch1.addConstraint(Sketcher.Constraint("DistanceX", 50, 3, -1, 1, 28.0))
sketch1.addConstraint(Sketcher.Constraint("DistanceX", 52, 2, -1, 1, 50.0))
sketch1.addConstraint(Sketcher.Constraint("DistanceY", -1, 1, 52, 2, 120.0))
pad1 = body.newObject("PartDesign::Pad", "Pad")
pad1.Profile = sketch1
pad1.Length = 3.175
pad1.Reversed = True
doc.recompute()

fillet = body.newObject("PartDesign::Fillet", "Fillet")
fillet.Base = (pad1, edges_at(pad1, [
    (110, 1.587, 300),
    (-110, 1.587, 300),
    (-110, 1.587, -300),
    (110, 1.587, -300),
]))
fillet.Radius = 3.2

doc.recompute()
